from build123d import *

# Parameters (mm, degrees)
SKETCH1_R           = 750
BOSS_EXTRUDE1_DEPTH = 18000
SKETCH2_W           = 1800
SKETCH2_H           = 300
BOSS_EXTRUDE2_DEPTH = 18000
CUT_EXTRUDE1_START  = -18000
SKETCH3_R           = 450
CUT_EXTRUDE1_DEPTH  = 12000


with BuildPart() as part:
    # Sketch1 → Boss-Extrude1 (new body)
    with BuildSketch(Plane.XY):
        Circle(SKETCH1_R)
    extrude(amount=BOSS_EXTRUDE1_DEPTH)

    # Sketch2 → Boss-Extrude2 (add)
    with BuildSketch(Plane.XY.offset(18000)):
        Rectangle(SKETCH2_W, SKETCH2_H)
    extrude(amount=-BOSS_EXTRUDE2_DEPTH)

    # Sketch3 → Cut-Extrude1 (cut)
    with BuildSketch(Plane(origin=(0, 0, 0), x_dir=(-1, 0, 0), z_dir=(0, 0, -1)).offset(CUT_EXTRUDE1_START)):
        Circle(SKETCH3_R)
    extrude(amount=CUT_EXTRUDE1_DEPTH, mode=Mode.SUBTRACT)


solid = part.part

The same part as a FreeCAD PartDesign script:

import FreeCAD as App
import Part
import Sketcher

V = App.Vector

doc = App.newDocument("Part")
params = doc.addObject("Spreadsheet::Sheet", "Params")
for row, (alias, value) in enumerate([
    ("sketch1_diameter", "1500 mm"),
    ("pad1_length", "18000 mm"),
    ("sketch2_width", "1800 mm"),
    ("sketch2_height", "300 mm"),
    ("pad2_length", "18000 mm"),
    ("sketch3_diameter", "900 mm"),
    ("pocket1_length", "12000 mm"),
], start=1):
    params.set(f"A{row}", alias)
    params.set(f"B{row}", "=" + value)
    params.setAlias(f"B{row}", alias)

body = doc.addObject("PartDesign::Body", "Body")

# Sketch on XY plane
sketch1 = body.newObject("Sketcher::SketchObject", "Sketch")
sketch1.AttachmentSupport = (doc.getObject("XY_Plane"), [""])
sketch1.MapMode = "FlatFace"
sketch1.addGeometry(Part.Circle(V(0, 0, 0), V(0, 0, 1), 750), False)
sketch1.addConstraint([
    Sketcher.Constraint("Coincident", 0, 3, -1, 1),
    Sketcher.Constraint("Diameter", 0, 1500.0),
])
sketch1.setExpression("Constraints[1]", "Params.sketch1_diameter")
pad1 = body.newObject("PartDesign::Pad", "Pad")
pad1.Profile = sketch1
pad1.setExpression("Length", "Params.pad1_length")

# Sketch on XY plane
sketch2 = body.newObject("Sketcher::SketchObject", "Sketch001")
sketch2.AttachmentSupport = (doc.getObject("XY_Plane"), [""])
sketch2.MapMode = "FlatFace"
sketch2.AttachmentOffset = App.Placement(V(0, 0, 18000), App.Rotation())
sketch2.addGeometry([
    Part.LineSegment(V(-900, 150, 0), V(-900, -150, 0)),
    Part.LineSegment(V(-900, -150, 0), V(900, -150, 0)),
    Part.LineSegment(V(900, -150, 0), V(900, 150, 0)),
    Part.LineSegment(V(900, 150, 0), V(-900, 150, 0)),
], False)
sketch2.addConstraint([
    Sketcher.Constraint("Coincident", 0, 2, 1, 1),
    Sketcher.Constraint("Coincident", 1, 2, 2, 1),
    Sketcher.Constraint("Coincident", 2, 2, 3, 1),
    Sketcher.Constraint("Coincident", 3, 2, 0, 1),
    Sketcher.Constraint("Vertical", 0),
    Sketcher.Constraint("Horizontal", 1),
    Sketcher.Constraint("Vertical", 2),
    Sketcher.Constraint("Horizontal", 3),
    Sketcher.Constraint("Symmetric", 0, 2, 2, 2, -1, 1),
    Sketcher.Constraint("DistanceX", 1, 1, 1, 2, 1800.0),
    Sketcher.Constraint("DistanceY", 0, 2, 0, 1, 300.0),
])
sketch2.setExpression("Constraints[9]", "Params.sketch2_width")
sketch2.setExpression("Constraints[10]", "Params.sketch2_height")
pad2 = body.newObject("PartDesign::Pad", "Pad001")
pad2.Profile = sketch2
pad2.setExpression("Length", "Params.pad2_length")
pad2.Reversed = True

# Sketch on XY plane
sketch3 = body.newObject("Sketcher::SketchObject", "Sketch002")
sketch3.AttachmentSupport = (doc.getObject("XY_Plane"), [""])
sketch3.MapMode = "FlatFace"
sketch3.AttachmentOffset = App.Placement(V(0, 0, 18000), App.Rotation())
sketch3.addGeometry(Part.Circle(V(0, 0, 0), V(0, 0, 1), 450), False)
sketch3.addConstraint([
    Sketcher.Constraint("Coincident", 0, 3, -1, 1),
    Sketcher.Constraint("Diameter", 0, 900.0),
])
sketch3.setExpression("Constraints[1]", "Params.sketch3_diameter")
pocket1 = body.newObject("PartDesign::Pocket", "Pocket")
pocket1.Profile = sketch3
pocket1.setExpression("Length", "Params.pocket1_length")

doc.recompute()
